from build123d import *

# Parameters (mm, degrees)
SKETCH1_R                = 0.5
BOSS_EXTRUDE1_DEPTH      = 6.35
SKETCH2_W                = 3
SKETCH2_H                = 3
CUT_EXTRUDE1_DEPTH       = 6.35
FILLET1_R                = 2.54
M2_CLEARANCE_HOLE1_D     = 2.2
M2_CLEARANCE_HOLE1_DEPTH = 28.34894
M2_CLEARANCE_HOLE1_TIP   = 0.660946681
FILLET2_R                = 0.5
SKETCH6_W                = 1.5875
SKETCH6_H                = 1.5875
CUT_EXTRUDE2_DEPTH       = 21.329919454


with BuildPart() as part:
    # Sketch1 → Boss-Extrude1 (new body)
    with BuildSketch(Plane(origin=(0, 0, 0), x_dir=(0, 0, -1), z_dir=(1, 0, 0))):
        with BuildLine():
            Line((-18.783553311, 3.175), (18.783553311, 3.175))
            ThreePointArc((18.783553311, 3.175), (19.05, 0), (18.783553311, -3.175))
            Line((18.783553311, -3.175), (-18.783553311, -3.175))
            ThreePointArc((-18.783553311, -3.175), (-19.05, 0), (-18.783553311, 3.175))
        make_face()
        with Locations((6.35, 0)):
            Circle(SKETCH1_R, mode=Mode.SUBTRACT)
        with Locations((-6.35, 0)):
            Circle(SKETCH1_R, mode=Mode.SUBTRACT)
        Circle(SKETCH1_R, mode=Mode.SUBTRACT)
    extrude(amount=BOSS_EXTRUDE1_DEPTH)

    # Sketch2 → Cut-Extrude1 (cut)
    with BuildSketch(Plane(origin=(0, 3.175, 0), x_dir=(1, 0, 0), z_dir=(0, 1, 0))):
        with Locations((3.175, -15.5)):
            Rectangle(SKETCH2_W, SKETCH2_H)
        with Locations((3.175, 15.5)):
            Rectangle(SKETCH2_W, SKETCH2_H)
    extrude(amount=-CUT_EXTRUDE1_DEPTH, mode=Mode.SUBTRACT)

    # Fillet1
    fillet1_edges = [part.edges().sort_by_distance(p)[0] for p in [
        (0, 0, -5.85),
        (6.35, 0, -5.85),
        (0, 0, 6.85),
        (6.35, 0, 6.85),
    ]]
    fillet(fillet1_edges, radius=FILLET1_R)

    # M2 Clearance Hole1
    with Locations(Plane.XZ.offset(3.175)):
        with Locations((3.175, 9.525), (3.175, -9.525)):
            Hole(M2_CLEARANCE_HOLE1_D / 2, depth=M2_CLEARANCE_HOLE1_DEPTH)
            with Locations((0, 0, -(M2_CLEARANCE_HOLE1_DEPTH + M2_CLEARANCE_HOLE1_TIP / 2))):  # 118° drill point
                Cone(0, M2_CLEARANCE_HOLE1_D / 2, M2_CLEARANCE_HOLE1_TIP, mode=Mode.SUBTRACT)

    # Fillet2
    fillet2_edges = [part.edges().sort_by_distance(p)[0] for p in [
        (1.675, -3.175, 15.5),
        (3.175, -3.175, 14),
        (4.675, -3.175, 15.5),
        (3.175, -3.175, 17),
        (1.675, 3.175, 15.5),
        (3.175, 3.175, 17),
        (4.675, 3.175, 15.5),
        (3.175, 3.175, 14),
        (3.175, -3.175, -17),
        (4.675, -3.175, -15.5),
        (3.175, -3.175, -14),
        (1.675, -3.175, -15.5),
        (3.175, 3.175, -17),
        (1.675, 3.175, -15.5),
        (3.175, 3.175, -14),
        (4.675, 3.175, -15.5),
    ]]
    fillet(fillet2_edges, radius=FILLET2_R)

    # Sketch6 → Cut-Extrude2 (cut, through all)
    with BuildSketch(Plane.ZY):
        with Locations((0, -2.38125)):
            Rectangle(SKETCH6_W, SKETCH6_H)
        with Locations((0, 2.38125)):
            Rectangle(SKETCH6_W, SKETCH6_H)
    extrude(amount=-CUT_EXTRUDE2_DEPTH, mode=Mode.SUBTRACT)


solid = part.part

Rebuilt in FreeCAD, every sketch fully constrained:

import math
import FreeCAD as App
import Part
import Sketcher

V = App.Vector
Q = App.Units.Quantity


def edges_at(feature, points):
    """Names of the edges that pass closest to the given points."""
    edges = feature.Shape.Edges
    near = lambda p: min(range(len(edges)), key=lambda i: edges[i].distToShape(Part.Vertex(*p))[0])
    return sorted({f"Edge{near(p) + 1}" for p in points})

doc = App.newDocument("Part")
body = doc.addObject("PartDesign::Body", "Body")

# Sketch on YZ plane
sketch1 = doc.addObject("Sketcher::SketchObject", "Sketch")
body.addObject(sketch1)
sketch1.AttachmentSupport = (doc.YZ_Plane, [""])
sketch1.MapMode = "FlatFace"
sketch1.addGeometry([
    Part.LineSegment(V(3.175, -18.783553, 0), V(3.175, 18.783553, 0)),  # 0
    Part.ArcOfCircle(Part.Circle(V(0, 0, 0), V(0, 0, 1), 19.05), math.radians(80.405932), math.radians(99.594068)),  # 1
    Part.LineSegment(V(-3.175, 18.783553, 0), V(-3.175, -18.783553, 0)),  # 2
    Part.ArcOfCircle(Part.Circle(V(0, 0, 0), V(0, 0, 1), 19.05), math.radians(-99.594068), math.radians(-80.405932)),  # 3
    Part.Circle(V(0, -6.35, 0), V(0, 0, 1), 0.5),  # 4
    Part.Circle(V(0, 0, 0), V(0, 0, 1), 0.5),  # 5
    Part.Circle(V(0, 6.35, 0), V(0, 0, 1), 0.5),  # 6
], False)
sketch1.addConstraint([
    Sketcher.Constraint("Coincident", 0, 2, 1, 1),
    Sketcher.Constraint("Coincident", 1, 2, 2, 1),
    Sketcher.Constraint("Coincident", 2, 2, 3, 1),
    Sketcher.Constraint("Coincident", 3, 2, 0, 1),
    Sketcher.Constraint("Vertical", 0),
    Sketcher.Constraint("Vertical", 2),
    Sketcher.Constraint("Coincident", 1, 3, -1, 1),
    Sketcher.Constraint("Coincident", 3, 3, -1, 1),
    Sketcher.Constraint("Coincident", 5, 3, -1, 1),
    Sketcher.Constraint("Equal", 1, 3),
    Sketcher.Constraint("Equal", 4, 5),
    Sketcher.Constraint("Equal", 5, 6),
    Sketcher.Constraint("Symmetric", 4, 3, 6, 3, -1, 1),
    Sketcher.Constraint("PointOnObject", 4, 3, -2),
    Sketcher.Constraint("Horizontal", 0, 2, 1, 2),
    Sketcher.Constraint("Diameter", 4, Q("1 mm")),
    Sketcher.Constraint("Radius", 1, Q("19.05 mm")),
    Sketcher.Constraint("DistanceY", 4, 3, 6, 3, Q("12.7 mm")),
    Sketcher.Constraint("DistanceX", 1, 2, 0, 2, Q("6.35 mm")),
])
pad1 = doc.addObject("PartDesign::Pad", "Pad")
body.addObject(pad1)
pad1.Profile = sketch1
pad1.Length = 6.35

# Sketch on XZ plane
sketch2 = doc.addObject("Sketcher::SketchObject", "Sketch001")
body.addObject(sketch2)
sketch2.AttachmentSupport = (doc.XZ_Plane, [""])
sketch2.MapMode = "FlatFace"
sketch2.AttachmentOffset = App.Placement(V(0, 0, -3.175), App.Rotation())
sketch2.addGeometry([
    Part.LineSegment(V(1.675, 14, 0), V(1.675, 17, 0)),  # 0
    Part.LineSegment(V(1.675, 17, 0), V(4.675, 17, 0)),  # 1
    Part.LineSegment(V(4.675, 17, 0), V(4.675, 14, 0)),  # 2
    Part.LineSegment(V(4.675, 14, 0), V(1.675, 14, 0)),  # 3
    Part.LineSegment(V(1.675, -17, 0), V(1.675, -14, 0)),  # 4
    Part.LineSegment(V(1.675, -14, 0), V(4.675, -14, 0)),  # 5
    Part.LineSegment(V(4.675, -14, 0), V(4.675, -17, 0)),  # 6
    Part.LineSegment(V(4.675, -17, 0), V(1.675, -17, 0)),  # 7
], False)
sketch2.addConstraint([
    Sketcher.Constraint("Coincident", 0, 2, 1, 1),
    Sketcher.Constraint("Coincident", 1, 2, 2, 1),
    Sketcher.Constraint("Coincident", 2, 2, 3, 1),
    Sketcher.Constraint("Coincident", 3, 2, 0, 1),
    Sketcher.Constraint("Coincident", 4, 2, 5, 1),
    Sketcher.Constraint("Coincident", 5, 2, 6, 1),
    Sketcher.Constraint("Coincident", 6, 2, 7, 1),
    Sketcher.Constraint("Coincident", 7, 2, 4, 1),
    Sketcher.Constraint("Vertical", 0),
    Sketcher.Constraint("Horizontal", 1),
    Sketcher.Constraint("Vertical", 2),
    Sketcher.Constraint("Horizontal", 3),
    Sketcher.Constraint("Vertical", 4),
    Sketcher.Constraint("Horizontal", 5),
    Sketcher.Constraint("Vertical", 6),
    Sketcher.Constraint("Horizontal", 7),
    Sketcher.Constraint("Symmetric", 3, 2, 4, 2, -1),
    Sketcher.Constraint("Symmetric", 1, 2, 6, 2, -1),
    Sketcher.Constraint("Equal", 7, 0),
    Sketcher.Constraint("DistanceX", 1, 1, 1, 2, Q("3 mm")),
    Sketcher.Constraint("DistanceY", -1, 1, 0, 2, Q("17 mm")),
    Sketcher.Constraint("DistanceX", -1, 1, 0, 2, Q("1.675 mm")),
])
pocket1 = doc.addObject("PartDesign::Pocket", "Pocket")
body.addObject(pocket1)
pocket1.Profile = sketch2
pocket1.Length = 6.35
pocket1.Reversed = True
doc.recompute()

fillet = doc.addObject("PartDesign::Fillet", "Fillet")
body.addObject(fillet)
fillet.Base = (pocket1, edges_at(pocket1, [
    (0, 0, -5.85),
    (6.35, 0, -5.85),
    (0, 0, 6.85),
    (6.35, 0, 6.85),
]))
fillet.Radius = 2.54

# Sketch on XZ plane
sketch3 = doc.addObject("Sketcher::SketchObject", "Sketch002")
body.addObject(sketch3)
sketch3.AttachmentSupport = (doc.XZ_Plane, [""])
sketch3.MapMode = "FlatFace"
sketch3.AttachmentOffset = App.Placement(V(0, 0, 3.175), App.Rotation())
sketch3.addGeometry([
    Part.Circle(V(3.175, 9.525, 0), V(0, 0, 1), 1.1),
    Part.Circle(V(3.175, -9.525, 0), V(0, 0, 1), 1.1),
], False)
sketch3.addConstraint([
    Sketcher.Constraint("Equal", 0, 1),
    Sketcher.Constraint("Symmetric", 0, 3, 1, 3, -1),
    Sketcher.Constraint("Diameter", 0, Q("2.2 mm")),
    Sketcher.Constraint("DistanceY", 1, 3, 0, 3, Q("19.05 mm")),
    Sketcher.Constraint("DistanceX", -1, 1, 0, 3, Q("3.175 mm")),
])
doc.recompute()
hole = doc.addObject("PartDesign::Hole", "Hole")
body.addObject(hole)
hole.Profile = sketch3
hole.ThreadType = "None"
hole.Diameter = 2.2
hole.DepthType = "Dimension"
hole.Depth = 28.34894
hole.DrillPoint = "Angled"
hole.DrillPointAngle = 118
doc.recompute()

fillet2 = doc.addObject("PartDesign::Fillet", "Fillet001")
body.addObject(fillet2)
fillet2.Base = (hole, edges_at(hole, [
    (1.675, -3.175, 15.5),
    (3.175, -3.175, 14),
    (4.675, -3.175, 15.5),
    (3.175, -3.175, 17),
    (1.675, 3.175, 15.5),
    (3.175, 3.175, 17),
    (4.675, 3.175, 15.5),
    (3.175, 3.175, 14),
    (3.175, -3.175, -17),
    (4.675, -3.175, -15.5),
    (3.175, -3.175, -14),
    (1.675, -3.175, -15.5),
    (3.175, 3.175, -17),
    (1.675, 3.175, -15.5),
    (3.175, 3.175, -14),
    (4.675, 3.175, -15.5),
]))
fillet2.Radius = 0.5

# Sketch on YZ plane
sketch4 = doc.addObject("Sketcher::SketchObject", "Sketch003")
body.addObject(sketch4)
sketch4.AttachmentSupport = (doc.YZ_Plane, [""])
sketch4.MapMode = "FlatFace"
sketch4.addGeometry([
    Part.LineSegment(V(-1.5875, -0.79375, 0), V(-3.175, -0.79375, 0)),  # 0
    Part.LineSegment(V(-3.175, -0.79375, 0), V(-3.175, 0.79375, 0)),  # 1
    Part.LineSegment(V(-3.175, 0.79375, 0), V(-1.5875, 0.79375, 0)),  # 2
    Part.LineSegment(V(-1.5875, 0.79375, 0), V(-1.5875, -0.79375, 0)),  # 3
    Part.LineSegment(V(3.175, -0.79375, 0), V(1.5875, -0.79375, 0)),  # 4
    Part.LineSegment(V(1.5875, -0.79375, 0), V(1.5875, 0.79375, 0)),  # 5
    Part.LineSegment(V(1.5875, 0.79375, 0), V(3.175, 0.79375, 0)),  # 6
    Part.LineSegment(V(3.175, 0.79375, 0), V(3.175, -0.79375, 0)),  # 7
], False)
sketch4.addConstraint([
    Sketcher.Constraint("Coincident", 0, 2, 1, 1),
    Sketcher.Constraint("Coincident", 1, 2, 2, 1),
    Sketcher.Constraint("Coincident", 2, 2, 3, 1),
    Sketcher.Constraint("Coincident", 3, 2, 0, 1),
    Sketcher.Constraint("Coincident", 4, 2, 5, 1),
    Sketcher.Constraint("Coincident", 5, 2, 6, 1),
    Sketcher.Constraint("Coincident", 6, 2, 7, 1),
    Sketcher.Constraint("Coincident", 7, 2, 4, 1),
    Sketcher.Constraint("Horizontal", 0),
    Sketcher.Constraint("Vertical", 1),
    Sketcher.Constraint("Horizontal", 2),
    Sketcher.Constraint("Vertical", 3),
    Sketcher.Constraint("Horizontal", 4),
    Sketcher.Constraint("Vertical", 5),
    Sketcher.Constraint("Horizontal", 6),
    Sketcher.Constraint("Vertical", 7),
    Sketcher.Constraint("Symmetric", 2, 2, 4, 2, -1, 1),
    Sketcher.Constraint("Symmetric", 0, 2, 6, 2, -1, 1),
    Sketcher.Constraint("Horizontal", 3, 2, 4, 2),
    Sketcher.Constraint("Equal", 6, 1),
    Sketcher.Constraint("DistanceX", 1, 2, 6, 2, Q("6.35 mm")),
    Sketcher.Constraint("DistanceX", 0, 2, 0, 1, Q("1.5875 mm")),
])
pocket2 = doc.addObject("PartDesign::Pocket", "Pocket001")
body.addObject(pocket2)
pocket2.Profile = sketch4
pocket2.Type = "ThroughAll"
pocket2.Reversed = True

doc.recompute()
